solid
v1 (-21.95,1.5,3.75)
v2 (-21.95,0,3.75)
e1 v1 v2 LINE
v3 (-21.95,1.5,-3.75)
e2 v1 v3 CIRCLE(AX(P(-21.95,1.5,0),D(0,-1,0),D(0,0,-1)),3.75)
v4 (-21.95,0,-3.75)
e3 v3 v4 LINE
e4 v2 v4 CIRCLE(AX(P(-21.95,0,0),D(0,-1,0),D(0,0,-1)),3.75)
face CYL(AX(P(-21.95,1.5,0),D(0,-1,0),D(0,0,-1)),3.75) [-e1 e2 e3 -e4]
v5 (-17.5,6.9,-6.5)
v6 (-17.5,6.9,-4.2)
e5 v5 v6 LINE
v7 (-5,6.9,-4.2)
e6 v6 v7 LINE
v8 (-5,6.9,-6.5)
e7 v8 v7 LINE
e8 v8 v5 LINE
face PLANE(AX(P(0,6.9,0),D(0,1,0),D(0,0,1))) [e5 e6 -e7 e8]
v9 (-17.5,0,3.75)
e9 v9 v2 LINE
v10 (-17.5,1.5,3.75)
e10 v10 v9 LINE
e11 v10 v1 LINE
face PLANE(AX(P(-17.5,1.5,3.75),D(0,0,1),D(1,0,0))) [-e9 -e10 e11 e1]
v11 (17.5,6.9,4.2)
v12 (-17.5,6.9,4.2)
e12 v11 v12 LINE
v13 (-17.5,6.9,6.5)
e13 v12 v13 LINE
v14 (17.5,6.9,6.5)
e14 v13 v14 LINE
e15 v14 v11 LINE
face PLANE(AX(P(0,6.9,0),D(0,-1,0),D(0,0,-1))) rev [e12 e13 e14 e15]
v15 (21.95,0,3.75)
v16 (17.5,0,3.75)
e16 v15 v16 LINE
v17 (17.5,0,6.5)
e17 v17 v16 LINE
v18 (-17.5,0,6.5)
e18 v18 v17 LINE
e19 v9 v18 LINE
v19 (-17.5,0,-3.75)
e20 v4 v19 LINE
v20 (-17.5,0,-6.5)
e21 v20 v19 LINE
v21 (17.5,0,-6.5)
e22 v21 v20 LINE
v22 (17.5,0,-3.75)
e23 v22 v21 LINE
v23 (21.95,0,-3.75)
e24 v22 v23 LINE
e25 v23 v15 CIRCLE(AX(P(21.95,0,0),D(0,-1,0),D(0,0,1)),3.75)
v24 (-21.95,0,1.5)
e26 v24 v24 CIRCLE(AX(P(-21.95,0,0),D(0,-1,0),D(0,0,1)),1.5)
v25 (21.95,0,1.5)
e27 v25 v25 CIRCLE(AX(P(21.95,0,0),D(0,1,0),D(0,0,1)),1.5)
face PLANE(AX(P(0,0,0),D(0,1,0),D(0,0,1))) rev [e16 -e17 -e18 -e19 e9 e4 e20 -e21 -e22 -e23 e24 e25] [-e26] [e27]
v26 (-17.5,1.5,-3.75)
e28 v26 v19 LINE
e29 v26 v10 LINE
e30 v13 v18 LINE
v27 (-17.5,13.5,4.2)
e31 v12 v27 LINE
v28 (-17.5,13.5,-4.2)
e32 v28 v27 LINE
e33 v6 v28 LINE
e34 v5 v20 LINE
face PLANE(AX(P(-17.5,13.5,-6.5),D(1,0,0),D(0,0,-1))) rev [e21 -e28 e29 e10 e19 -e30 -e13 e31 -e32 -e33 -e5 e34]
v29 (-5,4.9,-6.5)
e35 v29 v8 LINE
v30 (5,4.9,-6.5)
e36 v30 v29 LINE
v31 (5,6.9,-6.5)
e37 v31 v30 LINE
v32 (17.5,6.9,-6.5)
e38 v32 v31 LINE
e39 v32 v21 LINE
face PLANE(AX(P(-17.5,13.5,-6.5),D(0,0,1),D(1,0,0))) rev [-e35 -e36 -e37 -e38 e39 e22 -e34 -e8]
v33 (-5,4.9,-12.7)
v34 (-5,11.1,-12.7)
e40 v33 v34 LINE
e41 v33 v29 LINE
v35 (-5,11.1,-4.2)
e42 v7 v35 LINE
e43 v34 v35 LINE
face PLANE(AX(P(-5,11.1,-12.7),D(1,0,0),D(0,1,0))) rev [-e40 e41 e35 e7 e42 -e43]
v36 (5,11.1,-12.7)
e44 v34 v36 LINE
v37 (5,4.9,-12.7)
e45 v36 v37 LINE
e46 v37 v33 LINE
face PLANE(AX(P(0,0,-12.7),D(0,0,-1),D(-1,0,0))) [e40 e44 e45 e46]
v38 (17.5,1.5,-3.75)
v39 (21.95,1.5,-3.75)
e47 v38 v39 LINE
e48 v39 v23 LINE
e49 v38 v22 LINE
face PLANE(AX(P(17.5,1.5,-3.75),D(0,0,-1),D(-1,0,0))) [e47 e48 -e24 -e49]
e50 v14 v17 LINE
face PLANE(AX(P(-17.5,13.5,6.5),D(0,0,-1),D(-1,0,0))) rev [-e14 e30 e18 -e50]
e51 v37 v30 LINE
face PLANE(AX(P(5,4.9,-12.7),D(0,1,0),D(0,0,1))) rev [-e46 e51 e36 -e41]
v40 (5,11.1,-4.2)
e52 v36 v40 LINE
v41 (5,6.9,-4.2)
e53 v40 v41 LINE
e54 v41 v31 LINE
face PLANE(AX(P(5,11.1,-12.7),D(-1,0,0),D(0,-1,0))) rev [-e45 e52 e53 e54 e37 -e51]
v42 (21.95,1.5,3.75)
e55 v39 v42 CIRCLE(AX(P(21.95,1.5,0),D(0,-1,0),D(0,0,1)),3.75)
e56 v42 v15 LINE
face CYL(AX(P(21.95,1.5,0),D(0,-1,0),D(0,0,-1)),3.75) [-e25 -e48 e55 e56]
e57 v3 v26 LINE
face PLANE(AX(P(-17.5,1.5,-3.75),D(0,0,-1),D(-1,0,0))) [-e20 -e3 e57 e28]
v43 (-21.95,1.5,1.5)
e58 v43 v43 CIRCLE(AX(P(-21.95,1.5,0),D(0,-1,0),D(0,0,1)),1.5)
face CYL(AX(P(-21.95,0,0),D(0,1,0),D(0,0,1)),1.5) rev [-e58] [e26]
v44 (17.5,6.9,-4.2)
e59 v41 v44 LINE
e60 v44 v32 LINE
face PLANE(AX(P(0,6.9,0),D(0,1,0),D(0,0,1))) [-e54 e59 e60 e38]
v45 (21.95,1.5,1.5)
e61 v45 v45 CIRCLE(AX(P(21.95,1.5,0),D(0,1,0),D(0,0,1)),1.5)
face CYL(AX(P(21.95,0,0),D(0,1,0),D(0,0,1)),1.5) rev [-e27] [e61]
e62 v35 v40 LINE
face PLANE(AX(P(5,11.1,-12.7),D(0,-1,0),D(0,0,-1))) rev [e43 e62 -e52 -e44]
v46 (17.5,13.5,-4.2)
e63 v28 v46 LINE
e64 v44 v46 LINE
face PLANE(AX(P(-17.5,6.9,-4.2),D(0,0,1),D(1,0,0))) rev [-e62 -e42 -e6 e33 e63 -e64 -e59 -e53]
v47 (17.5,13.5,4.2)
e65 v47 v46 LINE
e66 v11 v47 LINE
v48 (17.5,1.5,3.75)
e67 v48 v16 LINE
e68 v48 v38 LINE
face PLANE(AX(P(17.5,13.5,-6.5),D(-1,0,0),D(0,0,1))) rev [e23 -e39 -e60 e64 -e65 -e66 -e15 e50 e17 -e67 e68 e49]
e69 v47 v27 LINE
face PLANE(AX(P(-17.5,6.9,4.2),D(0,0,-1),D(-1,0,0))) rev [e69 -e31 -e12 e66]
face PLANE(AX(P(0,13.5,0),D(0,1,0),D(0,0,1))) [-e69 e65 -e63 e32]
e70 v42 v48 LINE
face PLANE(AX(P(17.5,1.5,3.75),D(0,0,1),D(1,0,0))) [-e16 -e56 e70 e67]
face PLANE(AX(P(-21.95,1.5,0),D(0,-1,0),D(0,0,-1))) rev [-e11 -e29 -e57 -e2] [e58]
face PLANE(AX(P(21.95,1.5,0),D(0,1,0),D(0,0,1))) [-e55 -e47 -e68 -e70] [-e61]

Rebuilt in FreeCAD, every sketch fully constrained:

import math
import FreeCAD as App
import Part
import Sketcher
from FreeCAD import Vector


def add_polygon(sketch, points):
    """Adds a closed chain of lines whose ends are joined by coincident constraints."""
    first, n = sketch.GeometryCount, len(points)
    for a, b in zip(points, points[1:] + points[:1]):
        sketch.addGeometry(Part.LineSegment(App.Vector(*a, 0), App.Vector(*b, 0)), False)
    for i in range(n):
        sketch.addConstraint(Sketcher.Constraint("Coincident", first + i, 2, first + (i + 1) % n, 1))

doc = App.newDocument("Part")
params = doc.addObject("Spreadsheet::Sheet", "Params")
for row, (alias, value) in enumerate([
    ("sketch1_width", "35 mm"),
    ("sketch1_height", "13 mm"),
    ("pad1_length", "13.5 mm"),
    ("sketch2_radius", "3.75 mm"),
    ("sketch2_width", "4.45 mm"),
    ("pad2_length", "1.5 mm"),
    ("sketch3_radius", "3.75 mm"),
    ("sketch3_width", "4.45 mm"),
    ("pad3_length", "1.5 mm"),
    ("sketch4_diameter", "3 mm"),
    ("pocket1_length", "1.5 mm"),
    ("sketch5_width", "35 mm"),
    ("sketch5_height", "2.3 mm"),
    ("pocket2_length", "6.6 mm"),
    ("sketch6_width", "10 mm"),
    ("sketch6_height", "6.2 mm"),
    ("pad4_length", "6.2 mm"),
    ("sketch7_width", "10 mm"),
    ("sketch7_height", "6.2 mm"),
    ("pad5_length", "2.3 mm"),
], start=1):
    params.set(f"A{row}", alias)
    params.set(f"B{row}", "=" + value)
    params.setAlias(f"B{row}", alias)

body = doc.addObject("PartDesign::Body", "Body")

sketch1 = body.newObject("Sketcher::SketchObject", "Sketch")
sketch1.AttachmentSupport = (doc.getObject("XZ_Plane"), [""])
sketch1.MapMode = "FlatFace"
add_polygon(sketch1, [(-18, -6), (-18, 6), (18, 6), (18, -6)])
sketch1.addConstraint([
    Sketcher.Constraint("Vertical", 0),
    Sketcher.Constraint("Horizontal", 1),
    Sketcher.Constraint("Vertical", 2),
    Sketcher.Constraint("Horizontal", 3),
    Sketcher.Constraint("Symmetric", 0, 2, 2, 2, -1, 1),
    Sketcher.Constraint("DistanceX", 1, 1, 1, 2, 35.0),
    Sketcher.Constraint("DistanceY", 0, 1, 0, 2, 13.0),
])
sketch1.setExpression("Constraints[9]", "Params.sketch1_width")
sketch1.setExpression("Constraints[10]", "Params.sketch1_height")
pad1 = body.newObject("PartDesign::Pad", "Pad")
pad1.Profile = sketch1
pad1.setExpression("Length", "Params.pad1_length")
pad1.Reversed = True

sketch2 = body.newObject("Sketcher::SketchObject", "Sketch001")
sketch2.AttachmentSupport = (doc.getObject("XZ_Plane"), [""])
sketch2.MapMode = "FlatFace"
sketch2.addGeometry([
    Part.LineSegment(Vector(17.5, 3.8, 0), Vector(17.5, -3.8, 0)),
    Part.LineSegment(Vector(17.5, -3.8, 0), Vector(21.9, -3.8, 0)),
    Part.ArcOfCircle(Part.Circle(Vector(21.9, 0, 0), Vector(0, 0, 1), 3.8), math.radians(-90), math.radians(90)),
    Part.LineSegment(Vector(21.9, 3.8, 0), Vector(17.5, 3.8, 0)),
], False)
sketch2.addConstraint([
    Sketcher.Constraint("Coincident", 0, 2, 1, 1),
    Sketcher.Constraint("Tangent", 1, 2, 2, 1),
    Sketcher.Constraint("Tangent", 2, 2, 3, 1),
    Sketcher.Constraint("Coincident", 3, 2, 0, 1),
    Sketcher.Constraint("Vertical", 0),
    Sketcher.Constraint("Horizontal", 1),
    Sketcher.Constraint("Horizontal", 3),
    Sketcher.Constraint("PointOnObject", 2, 3, -1),
    Sketcher.Constraint("Radius", 2, 3.75),
    Sketcher.Constraint("DistanceX", 1, 1, 1, 2, 4.45),
    Sketcher.Constraint("DistanceX", -1, 1, 0, 2, 17.5),
])
sketch2.setExpression("Constraints[8]", "Params.sketch2_radius")
sketch2.setExpression("Constraints[9]", "Params.sketch2_width")
pad2 = body.newObject("PartDesign::Pad", "Pad001")
pad2.Profile = sketch2
pad2.setExpression("Length", "Params.pad2_length")
pad2.Reversed = True

sketch3 = body.newObject("Sketcher::SketchObject", "Sketch002")
sketch3.AttachmentSupport = (doc.getObject("XZ_Plane"), [""])
sketch3.MapMode = "FlatFace"
sketch3.addGeometry([
    Part.LineSegment(Vector(-17.5, -3.8, 0), Vector(-17.5, 3.8, 0)),
    Part.LineSegment(Vector(-17.5, 3.8, 0), Vector(-21.9, 3.8, 0)),
    Part.ArcOfCircle(Part.Circle(Vector(-21.9, 0, 0), Vector(0, 0, 1), 3.8), math.radians(90), math.radians(270)),
    Part.LineSegment(Vector(-21.9, -3.8, 0), Vector(-17.5, -3.8, 0)),
], False)
sketch3.addConstraint([
    Sketcher.Constraint("Coincident", 0, 2, 1, 1),
    Sketcher.Constraint("Tangent", 1, 2, 2, 1),
    Sketcher.Constraint("Tangent", 2, 2, 3, 1),
    Sketcher.Constraint("Coincident", 3, 2, 0, 1),
    Sketcher.Constraint("Vertical", 0),
    Sketcher.Constraint("Horizontal", 1),
    Sketcher.Constraint("Horizontal", 3),
    Sketcher.Constraint("PointOnObject", 2, 3, -1),
    Sketcher.Constraint("Radius", 2, 3.75),
    Sketcher.Constraint("DistanceX", 1, 2, 1, 1, 4.45),
    Sketcher.Constraint("DistanceX", 0, 2, -1, 1, 17.5),
])
sketch3.setExpression("Constraints[8]", "Params.sketch3_radius")
sketch3.setExpression("Constraints[9]", "Params.sketch3_width")
pad3 = body.newObject("PartDesign::Pad", "Pad002")
pad3.Profile = sketch3
pad3.setExpression("Length", "Params.pad3_length")
pad3.Reversed = True

sketch4 = body.newObject("Sketcher::SketchObject", "Sketch003")
sketch4.AttachmentSupport = (doc.getObject("XZ_Plane"), [""])
sketch4.MapMode = "FlatFace"
sketch4.AttachmentOffset = App.Placement(Vector(0, 0, -1.5), App.Rotation())
sketch4.addGeometry(Part.Circle(Vector(21.9, 0, 0), Vector(0, 0, 1), 1.5), False)
sketch4.addConstraint([
    Sketcher.Constraint("PointOnObject", 0, 3, -1),
    Sketcher.Constraint("Diameter", 0, 3.0),
    Sketcher.Constraint("DistanceX", -1, 1, 0, 3, 21.95),
])
sketch4.setExpression("Constraints[1]", "Params.sketch4_diameter")
pocket1 = body.newObject("PartDesign::Pocket", "Pocket")
pocket1.Profile = sketch4
pocket1.setExpression("Length", "Params.pocket1_length")
pocket1.Reversed = True
doc.recompute()

mirrored = body.newObject("PartDesign::Mirrored", "Mirrored")
mirrored.Originals = [pocket1]
mirrored.MirrorPlane = (doc.getObject("YZ_Plane"), [""])
body.Tip = mirrored

sketch5 = body.newObject("Sketcher::SketchObject", "Sketch004")
sketch5.AttachmentSupport = (doc.getObject("XZ_Plane"), [""])
sketch5.MapMode = "FlatFace"
sketch5.AttachmentOffset = App.Placement(Vector(0, 0, -13.5), App.Rotation())
add_polygon(sketch5, [(-17.5, -6.5), (-17.5, -4.2), (17.5, -4.2), (17.5, -6.5)])
add_polygon(sketch5, [(-17.5, 4.2), (-17.5, 6.5), (17.5, 6.5), (17.5, 4.2)])
sketch5.addConstraint([
    Sketcher.Constraint("Vertical", 0),
    Sketcher.Constraint("Horizontal", 1),
    Sketcher.Constraint("Vertical", 2),
    Sketcher.Constraint("Horizontal", 3),
    Sketcher.Constraint("Vertical", 4),
    Sketcher.Constraint("Horizontal", 5),
    Sketcher.Constraint("Vertical", 6),
    Sketcher.Constraint("Horizontal", 7),
    Sketcher.Constraint("Symmetric", 2, 2, 4, 2, -1, 1),
    Sketcher.Constraint("Symmetric", 0, 2, 6, 2, -1, 1),
    Sketcher.Constraint("Vertical", 3, 2, 4, 2),
    Sketcher.Constraint("DistanceX", 1, 1, 1, 2, 35.0),
    Sketcher.Constraint("DistanceY", 0, 1, 0, 2, 2.3),
    Sketcher.Constraint("DistanceY", 3, 2, 4, 2, 13.0),
])
sketch5.setExpression("Constraints[19]", "Params.sketch5_width")
sketch5.setExpression("Constraints[20]", "Params.sketch5_height")
pocket2 = body.newObject("PartDesign::Pocket", "Pocket001")
pocket2.Profile = sketch5
pocket2.setExpression("Length", "Params.pocket2_length")
pocket2.Reversed = True

sketch6 = body.newObject("Sketcher::SketchObject", "Sketch005")
sketch6.AttachmentSupport = (doc.getObject("XY_Plane"), [""])
sketch6.MapMode = "FlatFace"
sketch6.AttachmentOffset = App.Placement(Vector(0, 0, -6.5), App.Rotation())
add_polygon(sketch6, [(5, 11), (5, 5), (-5, 5), (-5, 11)])
sketch6.addConstraint([
    Sketcher.Constraint("Vertical", 0),
    Sketcher.Constraint("Horizontal", 1),
    Sketcher.Constraint("Vertical", 2),
    Sketcher.Constraint("Horizontal", 3),
    Sketcher.Constraint("DistanceX", 1, 2, 1, 1, 10.0),
    Sketcher.Constraint("DistanceY", 0, 2, 0, 1, 6.2),
    Sketcher.Constraint("DistanceX", -1, 1, 0, 2, 5.0),
    Sketcher.Constraint("DistanceY", -1, 1, 0, 2, 4.9),
])
sketch6.setExpression("Constraints[8]", "Params.sketch6_width")
sketch6.setExpression("Constraints[9]", "Params.sketch6_height")
pad4 = body.newObject("PartDesign::Pad", "Pad003")
pad4.Profile = sketch6
pad4.setExpression("Length", "Params.pad4_length")
pad4.Reversed = True

sketch7 = body.newObject("Sketcher::SketchObject", "Sketch006")
sketch7.AttachmentSupport = (doc.getObject("XY_Plane"), [""])
sketch7.MapMode = "FlatFace"
sketch7.AttachmentOffset = App.Placement(Vector(0, 0, -6.5), App.Rotation())
add_polygon(sketch7, [(5, 11), (5, 5), (-5, 5), (-5, 11)])
sketch7.addConstraint([
    Sketcher.Constraint("Vertical", 0),
    Sketcher.Constraint("Horizontal", 1),
    Sketcher.Constraint("Vertical", 2),
    Sketcher.Constraint("Horizontal", 3),
    Sketcher.Constraint("DistanceX", 1, 2, 1, 1, 10.0),
    Sketcher.Constraint("DistanceY", 0, 2, 0, 1, 6.2),
    Sketcher.Constraint("DistanceX", -1, 1, 0, 2, 5.0),
    Sketcher.Constraint("DistanceY", -1, 1, 0, 2, 4.9),
])
sketch7.setExpression("Constraints[8]", "Params.sketch7_width")
sketch7.setExpression("Constraints[9]", "Params.sketch7_height")
pad5 = body.newObject("PartDesign::Pad", "Pad004")
pad5.Profile = sketch7
pad5.setExpression("Length", "Params.pad5_length")

doc.recompute()
